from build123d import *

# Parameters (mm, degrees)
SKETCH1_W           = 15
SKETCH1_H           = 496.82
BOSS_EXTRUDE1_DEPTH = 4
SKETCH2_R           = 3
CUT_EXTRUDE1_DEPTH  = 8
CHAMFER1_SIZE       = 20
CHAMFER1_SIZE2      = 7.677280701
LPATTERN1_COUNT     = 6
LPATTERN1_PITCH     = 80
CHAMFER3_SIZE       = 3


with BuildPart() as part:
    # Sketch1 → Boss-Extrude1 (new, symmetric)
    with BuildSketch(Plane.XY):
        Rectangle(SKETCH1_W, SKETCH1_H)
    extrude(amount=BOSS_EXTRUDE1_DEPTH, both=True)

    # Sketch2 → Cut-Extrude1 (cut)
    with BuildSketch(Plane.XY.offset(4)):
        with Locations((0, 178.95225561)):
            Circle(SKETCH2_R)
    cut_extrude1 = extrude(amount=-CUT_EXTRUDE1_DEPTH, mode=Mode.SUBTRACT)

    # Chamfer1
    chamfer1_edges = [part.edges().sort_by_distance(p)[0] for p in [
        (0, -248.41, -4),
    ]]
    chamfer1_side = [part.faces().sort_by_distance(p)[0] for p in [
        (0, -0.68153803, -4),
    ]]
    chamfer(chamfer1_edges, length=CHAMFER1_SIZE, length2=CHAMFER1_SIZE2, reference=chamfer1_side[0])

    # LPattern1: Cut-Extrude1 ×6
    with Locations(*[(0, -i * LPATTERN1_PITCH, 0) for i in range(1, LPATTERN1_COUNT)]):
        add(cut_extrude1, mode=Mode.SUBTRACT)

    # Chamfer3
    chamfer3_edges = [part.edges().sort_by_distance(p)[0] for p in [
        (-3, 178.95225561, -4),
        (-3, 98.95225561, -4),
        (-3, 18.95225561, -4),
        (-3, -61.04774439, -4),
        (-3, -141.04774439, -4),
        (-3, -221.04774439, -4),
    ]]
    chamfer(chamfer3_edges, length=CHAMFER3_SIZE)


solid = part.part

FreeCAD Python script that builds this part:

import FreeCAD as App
import Part
import Sketcher
from FreeCAD import Vector


def edges_at(feature, points):
    """Names of the edges that pass closest to the given points."""
    edges = feature.Shape.Edges
    near = lambda p: min(range(len(edges)), key=lambda i: edges[i].distToShape(Part.Vertex(*p))[0])
    return sorted({f"Edge{near(p) + 1}" for p in points})


def add_polygon(sketch, points):
    """Adds a closed chain of lines whose ends are joined by coincident constraints."""
    first, n = sketch.GeometryCount, len(points)
    for a, b in zip(points, points[1:] + points[:1]):
        sketch.addGeometry(Part.LineSegment(App.Vector(*a, 0), App.Vector(*b, 0)), False)
    for i in range(n):
        sketch.addConstraint(Sketcher.Constraint("Coincident", first + i, 2, first + (i + 1) % n, 1))

doc = App.newDocument("Part")
params = doc.addObject("Spreadsheet::Sheet", "Params")
for row, (alias, value) in enumerate([
    ("sketch1_width", "15 mm"),
    ("sketch1_height", "496.82 mm"),
    ("pad1_length", "8 mm"),
    ("sketch2_diameter", "6 mm"),
    ("pocket1_length", "8 mm"),
    ("chamfer_size", "20 mm"),
    ("chamfer_size2", "7.677281 mm"),
    ("linearpattern_pitch", "80 mm"),
    ("chamfer2_size", "3 mm"),
], start=1):
    params.set(f"A{row}", alias)
    params.set(f"B{row}", "=" + value)
    params.setAlias(f"B{row}", alias)

body = doc.addObject("PartDesign::Body", "Body")

sketch1 = body.newObject("Sketcher::SketchObject", "Sketch")
sketch1.AttachmentSupport = (doc.getObject("XY_Plane"), [""])
sketch1.MapMode = "FlatFace"
add_polygon(sketch1, [(-7.5, 248.41), (-7.5, -248.41), (7.5, -248.41), (7.5, 248.41)])
sketch1.addConstraint([
    Sketcher.Constraint("Vertical", 0),
    Sketcher.Constraint("Horizontal", 1),
    Sketcher.Constraint("Vertical", 2),
    Sketcher.Constraint("Horizontal", 3),
    Sketcher.Constraint("Symmetric", 0, 2, 2, 2, -1, 1),
    Sketcher.Constraint("DistanceX", 1, 1, 1, 2, 15.0),
    Sketcher.Constraint("DistanceY", 0, 2, 0, 1, 496.82),
])
sketch1.setExpression("Constraints[9]", "Params.sketch1_width")
sketch1.setExpression("Constraints[10]", "Params.sketch1_height")
pad1 = body.newObject("PartDesign::Pad", "Pad")
pad1.Profile = sketch1
pad1.setExpression("Length", "Params.pad1_length")
pad1.Midplane = True

sketch2 = body.newObject("Sketcher::SketchObject", "Sketch001")
sketch2.AttachmentSupport = (doc.getObject("XY_Plane"), [""])
sketch2.MapMode = "FlatFace"
sketch2.AttachmentOffset = App.Placement(Vector(0, 0, 4), App.Rotation())
sketch2.addGeometry(Part.Circle(Vector(0, 178.952256, 0), Vector(0, 0, 1), 3), False)
sketch2.addConstraint([
    Sketcher.Constraint("PointOnObject", 0, 3, -2),
    Sketcher.Constraint("Diameter", 0, 6.0),
    Sketcher.Constraint("DistanceY", -1, 1, 0, 3, 178.952256),
])
sketch2.setExpression("Constraints[1]", "Params.sketch2_diameter")
pocket1 = body.newObject("PartDesign::Pocket", "Pocket")
pocket1.Profile = sketch2
pocket1.setExpression("Length", "Params.pocket1_length")
doc.recompute()

chamfer = body.newObject("PartDesign::Chamfer", "Chamfer")
chamfer.Base = (pocket1, edges_at(pocket1, [(0, -248.41, -4)]))
chamfer.ChamferType = "Two distances"
chamfer.setExpression("Size", "Params.chamfer_size")
chamfer.setExpression("Size2", "Params.chamfer_size2")
chamfer.FlipDirection = True
doc.recompute()

linearpattern = body.newObject("PartDesign::LinearPattern", "LinearPattern")
linearpattern.Originals = [pocket1]
linearpattern.Direction = (doc.getObject("Y_Axis"), [""])
linearpattern.Mode = "offset"
linearpattern.setExpression("Offset", "Params.linearpattern_pitch")
linearpattern.Occurrences = 6
linearpattern.Reversed = True
body.Tip = linearpattern
doc.recompute()

chamfer2 = body.newObject("PartDesign::Chamfer", "Chamfer001")
chamfer2.Base = (linearpattern, edges_at(linearpattern, [
    (-3, 178.952, -4),
    (-3, 98.952, -4),
    (-3, 18.952, -4),
    (-3, -61.048, -4),
    (-3, -141.048, -4),
    (-3, -221.048, -4),
]))
chamfer2.setExpression("Size", "Params.chamfer2_size")

doc.recompute()
